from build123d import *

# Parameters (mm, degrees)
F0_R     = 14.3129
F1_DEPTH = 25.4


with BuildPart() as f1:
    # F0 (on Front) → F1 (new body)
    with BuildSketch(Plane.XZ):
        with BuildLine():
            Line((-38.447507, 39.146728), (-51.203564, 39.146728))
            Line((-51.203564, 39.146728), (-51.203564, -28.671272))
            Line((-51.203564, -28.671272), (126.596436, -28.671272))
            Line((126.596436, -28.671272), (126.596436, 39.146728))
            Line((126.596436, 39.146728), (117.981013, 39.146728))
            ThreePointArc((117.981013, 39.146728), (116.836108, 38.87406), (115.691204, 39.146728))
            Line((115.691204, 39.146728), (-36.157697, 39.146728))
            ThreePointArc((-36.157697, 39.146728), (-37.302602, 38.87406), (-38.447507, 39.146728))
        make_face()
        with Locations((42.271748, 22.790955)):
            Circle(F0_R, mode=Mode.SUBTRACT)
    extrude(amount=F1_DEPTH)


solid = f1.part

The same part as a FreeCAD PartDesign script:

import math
import FreeCAD as App
import Part
import Sketcher
from FreeCAD import Vector
Q = App.Units.Quantity

doc = App.newDocument("Part")
body = doc.addObject("PartDesign::Body", "Body")

# Sketch on XZ plane
sketch1 = body.newObject("Sketcher::SketchObject", "Sketch")
sketch1.AttachmentSupport = (doc.getObject("XZ_Plane"), [""])
sketch1.MapMode = "FlatFace"
sketch1.addGeometry([
    Part.LineSegment(Vector(-38.4, 39.1, 0), Vector(-51.2, 39.1, 0)),  # 0
    Part.LineSegment(Vector(-51.2, 39.1, 0), Vector(-51.2, -28.7, 0)),  # 1
    Part.LineSegment(Vector(-51.2, -28.7, 0), Vector(126.6, -28.7, 0)),  # 2
    Part.LineSegment(Vector(126.6, -28.7, 0), Vector(126.6, 39.1, 0)),  # 3
    Part.LineSegment(Vector(126.6, 39.1, 0), Vector(118, 39.1, 0)),  # 4
    Part.ArcOfCircle(Part.Circle(Vector(116.8, 41.4, 0), Vector(0, 0, 1), 2.5), math.radians(-117), math.radians(-63)),  # 5
    Part.LineSegment(Vector(115.7, 39.1, 0), Vector(-36.2, 39.1, 0)),  # 6
    Part.ArcOfCircle(Part.Circle(Vector(-37.3, 41.4, 0), Vector(0, 0, 1), 2.5), math.radians(-117), math.radians(-63)),  # 7
    Part.Circle(Vector(42.3, 22.8, 0), Vector(0, 0, 1), 14.3),  # 8
], False)
sketch1.addConstraint([
    Sketcher.Constraint("Coincident", 0, 2, 1, 1),
    Sketcher.Constraint("Coincident", 1, 2, 2, 1),
    Sketcher.Constraint("Coincident", 2, 2, 3, 1),
    Sketcher.Constraint("Coincident", 3, 2, 4, 1),
    Sketcher.Constraint("Coincident", 4, 2, 5, 2),
    Sketcher.Constraint("Coincident", 5, 1, 6, 1),
    Sketcher.Constraint("Coincident", 6, 2, 7, 2),
    Sketcher.Constraint("Coincident", 7, 1, 0, 1),
    Sketcher.Constraint("Horizontal", 0),
    Sketcher.Constraint("Vertical", 1),
    Sketcher.Constraint("Horizontal", 2),
    Sketcher.Constraint("Vertical", 3),
    Sketcher.Constraint("Horizontal", 4),
    Sketcher.Constraint("Horizontal", 6),
    Sketcher.Constraint("Horizontal", 0, 2, 3, 2),
    Sketcher.Constraint("Horizontal", 4, 2, 5, 1),
    Sketcher.Constraint("Radius", 5, Q("0.1000001 in")),
    Sketcher.Constraint("Radius", 7, Q("0.1000001 in")),
    Sketcher.Constraint("DistanceX", 2, 1, 2, 2, Q("7 in")),
    Sketcher.Constraint("Diameter", 8, Q("1.127 in")),
    Sketcher.Constraint("DistanceY", 1, 2, 1, 1, Q("2.67 in")),
    Sketcher.Constraint("DistanceX", 6, 2, 6, 1, 151.848901),
    Sketcher.Constraint("DistanceX", 0, 2, 0, 1, 12.756057),
    Sketcher.Constraint("DistanceX", 4, 2, 4, 1, 8.615423),
    Sketcher.Constraint("DistanceX", -1, 1, 5, 3, 116.836108),
    Sketcher.Constraint("DistanceY", -1, 1, 5, 3, 41.414061),
    Sketcher.Constraint("DistanceX", -1, 1, 8, 3, 42.271748),
    Sketcher.Constraint("DistanceY", -1, 1, 0, 2, 39.146728),
    Sketcher.Constraint("DistanceY", 8, 3, 7, 3, 18.623108),
])
pad1 = body.newObject("PartDesign::Pad", "Pad")
pad1.Profile = sketch1
pad1.Length = Q("1 in")

doc.recompute()
